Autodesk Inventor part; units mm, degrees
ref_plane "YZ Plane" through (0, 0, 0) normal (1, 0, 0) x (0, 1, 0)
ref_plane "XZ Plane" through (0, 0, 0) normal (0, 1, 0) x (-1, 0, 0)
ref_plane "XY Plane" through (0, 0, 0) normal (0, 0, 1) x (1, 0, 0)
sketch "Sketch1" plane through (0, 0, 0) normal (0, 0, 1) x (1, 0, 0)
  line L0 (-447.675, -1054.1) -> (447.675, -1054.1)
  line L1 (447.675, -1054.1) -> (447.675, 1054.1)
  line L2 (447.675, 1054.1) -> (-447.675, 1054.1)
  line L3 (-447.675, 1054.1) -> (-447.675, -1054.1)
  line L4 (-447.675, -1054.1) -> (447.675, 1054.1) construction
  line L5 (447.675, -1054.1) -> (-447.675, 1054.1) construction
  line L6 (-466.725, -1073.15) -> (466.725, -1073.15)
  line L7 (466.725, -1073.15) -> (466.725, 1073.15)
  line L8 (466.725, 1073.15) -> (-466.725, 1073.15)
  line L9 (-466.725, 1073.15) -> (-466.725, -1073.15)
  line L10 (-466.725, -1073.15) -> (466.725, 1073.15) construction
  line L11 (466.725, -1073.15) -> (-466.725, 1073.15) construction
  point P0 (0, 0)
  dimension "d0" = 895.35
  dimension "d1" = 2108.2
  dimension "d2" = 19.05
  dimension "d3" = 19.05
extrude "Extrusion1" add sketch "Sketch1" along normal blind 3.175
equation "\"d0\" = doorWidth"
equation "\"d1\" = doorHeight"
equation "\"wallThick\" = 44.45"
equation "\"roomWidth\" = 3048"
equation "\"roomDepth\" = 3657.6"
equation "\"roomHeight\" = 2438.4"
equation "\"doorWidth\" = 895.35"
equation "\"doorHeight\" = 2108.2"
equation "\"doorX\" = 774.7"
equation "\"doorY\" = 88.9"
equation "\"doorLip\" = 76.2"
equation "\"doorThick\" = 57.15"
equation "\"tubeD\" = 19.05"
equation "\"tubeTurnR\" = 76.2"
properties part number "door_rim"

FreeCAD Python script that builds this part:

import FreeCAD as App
import Part
import Sketcher
Q = App.Units.Quantity

doc = App.newDocument("Part")
body = doc.addObject("PartDesign::Body", "Body")

sketch1 = doc.addObject("Sketcher::SketchObject", "Sketch")
body.addObject(sketch1)
sketch1.AttachmentSupport = (doc.XY_Plane, [""])
sketch1.MapMode = "FlatFace"
sketch1.addGeometry(Part.LineSegment(App.Vector(-467, 1073, 0), App.Vector(-467, -1073, 0)), False)
sketch1.addGeometry(Part.LineSegment(App.Vector(-467, -1073, 0), App.Vector(467, -1073, 0)), False)
sketch1.addGeometry(Part.LineSegment(App.Vector(467, -1073, 0), App.Vector(467, 1073, 0)), False)
sketch1.addGeometry(Part.LineSegment(App.Vector(467, 1073, 0), App.Vector(-467, 1073, 0)), False)
sketch1.addGeometry(Part.LineSegment(App.Vector(448, -1054, 0), App.Vector(-448, -1054, 0)), False)
sketch1.addGeometry(Part.LineSegment(App.Vector(-448, -1054, 0), App.Vector(-448, 1054, 0)), False)
sketch1.addGeometry(Part.LineSegment(App.Vector(-448, 1054, 0), App.Vector(448, 1054, 0)), False)
sketch1.addGeometry(Part.LineSegment(App.Vector(448, 1054, 0), App.Vector(448, -1054, 0)), False)
sketch1.addConstraint(Sketcher.Constraint("Coincident", 0, 2, 1, 1))
sketch1.addConstraint(Sketcher.Constraint("Coincident", 1, 2, 2, 1))
sketch1.addConstraint(Sketcher.Constraint("Coincident", 2, 2, 3, 1))
sketch1.addConstraint(Sketcher.Constraint("Coincident", 3, 2, 0, 1))
sketch1.addConstraint(Sketcher.Constraint("Coincident", 4, 2, 5, 1))
sketch1.addConstraint(Sketcher.Constraint("Coincident", 5, 2, 6, 1))
sketch1.addConstraint(Sketcher.Constraint("Coincident", 6, 2, 7, 1))
sketch1.addConstraint(Sketcher.Constraint("Coincident", 7, 2, 4, 1))
sketch1.addConstraint(Sketcher.Constraint("Vertical", 0))
sketch1.addConstraint(Sketcher.Constraint("Horizontal", 1))
sketch1.addConstraint(Sketcher.Constraint("Vertical", 2))
sketch1.addConstraint(Sketcher.Constraint("Horizontal", 3))
sketch1.addConstraint(Sketcher.Constraint("Horizontal", 4))
sketch1.addConstraint(Sketcher.Constraint("Vertical", 5))
sketch1.addConstraint(Sketcher.Constraint("Horizontal", 6))
sketch1.addConstraint(Sketcher.Constraint("Vertical", 7))
sketch1.addConstraint(Sketcher.Constraint("Symmetric", 0, 2, 2, 2, -1, 1))
sketch1.addConstraint(Sketcher.Constraint("Symmetric", 4, 2, 6, 2, -1, 1))
sketch1.addConstraint(Sketcher.Constraint("DistanceY", 5, 1, 5, 2, Q("83 in")))
sketch1.addConstraint(Sketcher.Constraint("DistanceX", 4, 2, 4, 1, Q("35.25 in")))
sketch1.addConstraint(Sketcher.Constraint("DistanceX", 0, 2, 4, 2, Q("0.75 in")))
sketch1.addConstraint(Sketcher.Constraint("DistanceY", 0, 2, 4, 2, Q("0.75 in")))
pad1 = doc.addObject("PartDesign::Pad", "Pad")
body.addObject(pad1)
pad1.Profile = sketch1
pad1.Length = Q("0.125 in")

doc.recompute()
